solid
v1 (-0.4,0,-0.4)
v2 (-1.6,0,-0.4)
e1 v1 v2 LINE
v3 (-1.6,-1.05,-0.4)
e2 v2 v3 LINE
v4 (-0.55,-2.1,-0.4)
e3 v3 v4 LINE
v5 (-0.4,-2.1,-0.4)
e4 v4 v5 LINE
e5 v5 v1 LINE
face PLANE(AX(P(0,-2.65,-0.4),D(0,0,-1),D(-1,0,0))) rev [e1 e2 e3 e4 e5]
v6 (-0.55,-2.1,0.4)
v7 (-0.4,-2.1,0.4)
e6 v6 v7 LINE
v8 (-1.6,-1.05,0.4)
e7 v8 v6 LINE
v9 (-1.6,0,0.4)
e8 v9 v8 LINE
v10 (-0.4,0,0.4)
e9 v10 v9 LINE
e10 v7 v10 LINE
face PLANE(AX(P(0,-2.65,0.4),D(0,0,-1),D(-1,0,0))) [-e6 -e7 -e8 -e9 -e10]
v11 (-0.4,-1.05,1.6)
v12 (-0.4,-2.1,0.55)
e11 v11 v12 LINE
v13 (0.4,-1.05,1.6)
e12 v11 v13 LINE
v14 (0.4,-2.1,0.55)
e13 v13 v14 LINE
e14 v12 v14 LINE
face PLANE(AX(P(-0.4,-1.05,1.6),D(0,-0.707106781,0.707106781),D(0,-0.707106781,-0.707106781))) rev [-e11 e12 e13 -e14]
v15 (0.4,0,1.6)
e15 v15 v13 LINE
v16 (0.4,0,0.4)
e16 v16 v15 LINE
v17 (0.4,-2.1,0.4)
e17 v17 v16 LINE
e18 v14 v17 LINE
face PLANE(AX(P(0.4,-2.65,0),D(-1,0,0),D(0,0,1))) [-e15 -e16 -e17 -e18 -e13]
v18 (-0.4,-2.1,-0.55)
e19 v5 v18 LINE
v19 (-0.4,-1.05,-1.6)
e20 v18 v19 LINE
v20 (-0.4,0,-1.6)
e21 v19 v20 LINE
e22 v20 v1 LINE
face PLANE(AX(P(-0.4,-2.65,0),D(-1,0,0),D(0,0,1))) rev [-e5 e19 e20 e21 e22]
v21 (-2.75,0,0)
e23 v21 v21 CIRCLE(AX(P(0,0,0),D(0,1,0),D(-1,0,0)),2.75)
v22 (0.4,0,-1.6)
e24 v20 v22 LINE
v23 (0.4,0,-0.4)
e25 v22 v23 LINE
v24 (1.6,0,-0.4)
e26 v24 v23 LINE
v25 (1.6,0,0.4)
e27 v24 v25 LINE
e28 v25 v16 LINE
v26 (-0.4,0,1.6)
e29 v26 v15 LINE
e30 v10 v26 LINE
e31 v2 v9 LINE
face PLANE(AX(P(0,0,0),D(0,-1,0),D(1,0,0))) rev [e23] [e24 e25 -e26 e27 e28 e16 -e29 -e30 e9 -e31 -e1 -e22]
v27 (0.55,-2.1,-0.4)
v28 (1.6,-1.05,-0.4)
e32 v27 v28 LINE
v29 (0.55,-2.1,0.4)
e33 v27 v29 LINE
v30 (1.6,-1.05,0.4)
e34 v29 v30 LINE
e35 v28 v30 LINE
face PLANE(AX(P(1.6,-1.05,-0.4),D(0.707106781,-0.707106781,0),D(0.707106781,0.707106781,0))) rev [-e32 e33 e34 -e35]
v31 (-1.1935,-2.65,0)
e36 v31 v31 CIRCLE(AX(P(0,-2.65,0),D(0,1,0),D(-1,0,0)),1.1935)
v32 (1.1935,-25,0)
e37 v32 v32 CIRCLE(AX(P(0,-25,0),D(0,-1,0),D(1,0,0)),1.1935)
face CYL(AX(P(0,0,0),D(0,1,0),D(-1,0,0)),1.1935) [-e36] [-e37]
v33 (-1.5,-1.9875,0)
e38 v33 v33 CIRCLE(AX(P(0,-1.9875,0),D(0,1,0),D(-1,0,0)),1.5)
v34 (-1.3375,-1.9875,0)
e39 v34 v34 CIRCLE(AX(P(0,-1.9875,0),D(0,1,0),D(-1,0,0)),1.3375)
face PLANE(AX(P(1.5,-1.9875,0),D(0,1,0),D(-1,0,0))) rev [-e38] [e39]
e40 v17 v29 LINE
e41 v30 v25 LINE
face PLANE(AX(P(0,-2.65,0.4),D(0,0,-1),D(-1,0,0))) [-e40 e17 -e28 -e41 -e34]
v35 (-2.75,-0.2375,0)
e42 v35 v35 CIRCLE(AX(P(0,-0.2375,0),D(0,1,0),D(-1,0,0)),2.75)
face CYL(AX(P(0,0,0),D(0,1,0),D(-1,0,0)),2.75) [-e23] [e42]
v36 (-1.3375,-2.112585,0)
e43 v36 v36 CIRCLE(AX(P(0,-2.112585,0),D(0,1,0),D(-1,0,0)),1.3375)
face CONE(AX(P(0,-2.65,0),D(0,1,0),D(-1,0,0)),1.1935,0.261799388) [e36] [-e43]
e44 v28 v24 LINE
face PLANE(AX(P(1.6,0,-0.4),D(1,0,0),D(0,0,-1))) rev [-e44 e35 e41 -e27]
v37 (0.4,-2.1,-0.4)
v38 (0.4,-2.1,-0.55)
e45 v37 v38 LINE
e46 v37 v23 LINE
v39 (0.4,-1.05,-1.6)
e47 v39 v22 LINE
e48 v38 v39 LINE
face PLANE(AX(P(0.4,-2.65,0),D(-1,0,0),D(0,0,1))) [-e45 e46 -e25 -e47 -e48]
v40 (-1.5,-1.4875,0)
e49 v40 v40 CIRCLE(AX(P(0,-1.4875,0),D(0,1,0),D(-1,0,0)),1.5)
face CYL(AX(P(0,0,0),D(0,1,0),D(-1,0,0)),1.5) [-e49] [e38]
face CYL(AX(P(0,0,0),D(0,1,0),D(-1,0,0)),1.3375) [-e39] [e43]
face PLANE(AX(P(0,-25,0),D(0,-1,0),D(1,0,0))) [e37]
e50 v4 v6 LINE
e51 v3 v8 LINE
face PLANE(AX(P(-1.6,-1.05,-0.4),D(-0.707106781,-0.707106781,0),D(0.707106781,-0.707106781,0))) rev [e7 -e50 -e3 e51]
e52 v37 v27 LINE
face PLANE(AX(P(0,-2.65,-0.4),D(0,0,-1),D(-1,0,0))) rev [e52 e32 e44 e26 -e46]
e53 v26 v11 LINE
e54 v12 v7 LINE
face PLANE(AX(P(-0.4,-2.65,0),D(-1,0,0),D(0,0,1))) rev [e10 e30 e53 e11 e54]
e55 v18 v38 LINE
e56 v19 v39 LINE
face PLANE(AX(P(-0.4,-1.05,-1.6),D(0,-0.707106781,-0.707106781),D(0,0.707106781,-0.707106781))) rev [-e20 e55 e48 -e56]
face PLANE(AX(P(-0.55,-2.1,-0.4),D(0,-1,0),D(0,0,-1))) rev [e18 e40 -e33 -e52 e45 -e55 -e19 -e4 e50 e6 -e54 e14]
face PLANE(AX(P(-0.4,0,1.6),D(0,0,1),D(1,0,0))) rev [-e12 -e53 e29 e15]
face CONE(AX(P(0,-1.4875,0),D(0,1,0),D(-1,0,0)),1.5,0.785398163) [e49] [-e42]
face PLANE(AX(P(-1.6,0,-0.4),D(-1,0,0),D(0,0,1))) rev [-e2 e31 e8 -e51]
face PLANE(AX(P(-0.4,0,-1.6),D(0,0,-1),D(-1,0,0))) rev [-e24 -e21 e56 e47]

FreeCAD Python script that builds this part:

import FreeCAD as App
import Part
import Sketcher
from FreeCAD import Vector
Q = App.Units.Quantity

doc = App.newDocument("Part")
body = doc.addObject("PartDesign::Body", "Body")

# Sketch on XY plane
sketch1 = body.newObject("Sketcher::SketchObject", "Sketch")
sketch1.AttachmentSupport = (doc.getObject("XY_Plane"), [""])
sketch1.MapMode = "FlatFace"
sketch1.addGeometry(Part.LineSegment(Vector(2.75, 0, 0), Vector(0, 0, 0)), False)
sketch1.addGeometry(Part.LineSegment(Vector(0, 0, 0), Vector(0, -8, 0)), False)
sketch1.addGeometry(Part.LineSegment(Vector(0, -8, 0), Vector(1.19, -8, 0)), False)
sketch1.addGeometry(Part.LineSegment(Vector(1.19, -8, 0), Vector(1.19, -2.65, 0)), False)
sketch1.addGeometry(Part.LineSegment(Vector(1.19, -2.65, 0), Vector(1.34, -2.11, 0)), False)
sketch1.addGeometry(Part.LineSegment(Vector(1.34, -2.11, 0), Vector(1.34, -1.99, 0)), False)
sketch1.addGeometry(Part.LineSegment(Vector(1.34, -1.99, 0), Vector(1.5, -1.99, 0)), False)
sketch1.addGeometry(Part.LineSegment(Vector(1.5, -1.99, 0), Vector(1.5, -1.49, 0)), False)
sketch1.addGeometry(Part.LineSegment(Vector(1.5, -1.49, 0), Vector(2.75, -0.24, 0)), False)
sketch1.addGeometry(Part.LineSegment(Vector(2.75, -0.24, 0), Vector(2.75, 0, 0)), False)
sketch1.addConstraint(Sketcher.Constraint("Coincident", 0, 2, 1, 1))
sketch1.addConstraint(Sketcher.Constraint("Coincident", 1, 2, 2, 1))
sketch1.addConstraint(Sketcher.Constraint("Coincident", 2, 2, 3, 1))
sketch1.addConstraint(Sketcher.Constraint("Coincident", 3, 2, 4, 1))
sketch1.addConstraint(Sketcher.Constraint("Coincident", 4, 2, 5, 1))
sketch1.addConstraint(Sketcher.Constraint("Coincident", 5, 2, 6, 1))
sketch1.addConstraint(Sketcher.Constraint("Coincident", 6, 2, 7, 1))
sketch1.addConstraint(Sketcher.Constraint("Coincident", 7, 2, 8, 1))
sketch1.addConstraint(Sketcher.Constraint("Coincident", 8, 2, 9, 1))
sketch1.addConstraint(Sketcher.Constraint("Coincident", 9, 2, 0, 1))
sketch1.addConstraint(Sketcher.Constraint("Horizontal", 0))
sketch1.addConstraint(Sketcher.Constraint("Vertical", 1))
sketch1.addConstraint(Sketcher.Constraint("Horizontal", 2))
sketch1.addConstraint(Sketcher.Constraint("Vertical", 3))
sketch1.addConstraint(Sketcher.Constraint("Vertical", 5))
sketch1.addConstraint(Sketcher.Constraint("Horizontal", 6))
sketch1.addConstraint(Sketcher.Constraint("Vertical", 7))
sketch1.addConstraint(Sketcher.Constraint("Vertical", 9))
sketch1.addConstraint(Sketcher.Constraint("Coincident", 0, 2, -1, 1))
sketch1.addConstraint(Sketcher.Constraint("DistanceY", 1, 2, 1, 1, Q("8 mm")))
sketch1.addConstraint(Sketcher.Constraint("Angle", 4, Q("75 deg")))
sketch1.addConstraint(Sketcher.Constraint("Angle", 8, Q("45 deg")))
sketch1.addConstraint(Sketcher.Constraint("DistanceY", 7, 1, 7, 2, Q("0.5 mm")))
sketch1.addConstraint(Sketcher.Constraint("DistanceX", 0, 2, 0, 1, Q("2.75 mm")))
sketch1.addConstraint(Sketcher.Constraint("DistanceY", 3, 1, 3, 2, Q("5.35 mm")))
sketch1.addConstraint(Sketcher.Constraint("DistanceX", -1, 1, 6, 2, Q("1.5 mm")))
sketch1.addConstraint(Sketcher.Constraint("DistanceX", 2, 1, 2, 2, Q("1.1935 mm")))
sketch1.addConstraint(Sketcher.Constraint("DistanceX", 6, 1, 6, 2, Q("0.1625 mm")))
sketch1.addConstraint(Sketcher.Constraint("DistanceY", 9, 1, 9, 2, Q("0.2375 mm")))
revolution = body.newObject("PartDesign::Revolution", "Revolution")
revolution.Profile = sketch1
revolution.ReferenceAxis = (sketch1, ["V_Axis"])
revolution.Angle = 360

# Sketch on XY plane
sketch2 = body.newObject("Sketcher::SketchObject", "Sketch001")
sketch2.AttachmentSupport = (doc.getObject("XY_Plane"), [""])
sketch2.MapMode = "FlatFace"
sketch2.addGeometry(Part.LineSegment(Vector(-0.6, -2.1, 0), Vector(0.6, -2.1, 0)), False)
sketch2.addGeometry(Part.LineSegment(Vector(0.6, -2.1, 0), Vector(1.6, -1.1, 0)), False)
sketch2.addGeometry(Part.LineSegment(Vector(1.6, -1.1, 0), Vector(1.6, 0, 0)), False)
sketch2.addGeometry(Part.LineSegment(Vector(1.6, 0, 0), Vector(-1.6, 0, 0)), False)
sketch2.addGeometry(Part.LineSegment(Vector(-1.6, 0, 0), Vector(-1.6, -1.1, 0)), False)
sketch2.addGeometry(Part.LineSegment(Vector(-1.6, -1.1, 0), Vector(-0.6, -2.1, 0)), False)
sketch2.addConstraint(Sketcher.Constraint("Coincident", 0, 2, 1, 1))
sketch2.addConstraint(Sketcher.Constraint("Coincident", 1, 2, 2, 1))
sketch2.addConstraint(Sketcher.Constraint("Coincident", 2, 2, 3, 1))
sketch2.addConstraint(Sketcher.Constraint("Coincident", 3, 2, 4, 1))
sketch2.addConstraint(Sketcher.Constraint("Coincident", 4, 2, 5, 1))
sketch2.addConstraint(Sketcher.Constraint("Coincident", 5, 2, 0, 1))
sketch2.addConstraint(Sketcher.Constraint("Horizontal", 0))
sketch2.addConstraint(Sketcher.Constraint("Vertical", 2))
sketch2.addConstraint(Sketcher.Constraint("Horizontal", 3))
sketch2.addConstraint(Sketcher.Constraint("Vertical", 4))
sketch2.addConstraint(Sketcher.Constraint("Symmetric", 2, 2, 3, 2, -1, 1))
sketch2.addConstraint(Sketcher.Constraint("Perpendicular", 1, 5))
sketch2.addConstraint(Sketcher.Constraint("Horizontal", 1, 2, 4, 2))
sketch2.addConstraint(Sketcher.Constraint("Equal", 1, 5))
sketch2.addConstraint(Sketcher.Constraint("DistanceX", 0, 1, 0, 2, Q("1.1 mm")))
sketch2.addConstraint(Sketcher.Constraint("DistanceX", 3, 2, 3, 1, Q("3.2 mm")))
sketch2.addConstraint(Sketcher.Constraint("DistanceY", 2, 1, 2, 2, Q("1.05 mm")))
pocket1 = body.newObject("PartDesign::Pocket", "Pocket")
pocket1.Profile = sketch2
pocket1.Type = "TwoLengths"
pocket1.Length = 0.4
pocket1.Length2 = 0.4
pocket1.Reversed = True

# Sketch on YZ plane
sketch3 = body.newObject("Sketcher::SketchObject", "Sketch002")
sketch3.AttachmentSupport = (doc.getObject("YZ_Plane"), [""])
sketch3.MapMode = "FlatFace"
sketch3.addGeometry(Part.LineSegment(Vector(-2.1, 0.6, 0), Vector(-2.1, -0.6, 0)), False)
sketch3.addGeometry(Part.LineSegment(Vector(-2.1, -0.6, 0), Vector(-1.1, -1.6, 0)), False)
sketch3.addGeometry(Part.LineSegment(Vector(-1.1, -1.6, 0), Vector(0, -1.6, 0)), False)
sketch3.addGeometry(Part.LineSegment(Vector(0, -1.6, 0), Vector(0, 1.6, 0)), False)
sketch3.addGeometry(Part.LineSegment(Vector(0, 1.6, 0), Vector(-1.1, 1.6, 0)), False)
sketch3.addGeometry(Part.LineSegment(Vector(-1.1, 1.6, 0), Vector(-2.1, 0.6, 0)), False)
sketch3.addConstraint(Sketcher.Constraint("Coincident", 0, 2, 1, 1))
sketch3.addConstraint(Sketcher.Constraint("Coincident", 1, 2, 2, 1))
sketch3.addConstraint(Sketcher.Constraint("Coincident", 2, 2, 3, 1))
sketch3.addConstraint(Sketcher.Constraint("Coincident", 3, 2, 4, 1))
sketch3.addConstraint(Sketcher.Constraint("Coincident", 4, 2, 5, 1))
sketch3.addConstraint(Sketcher.Constraint("Coincident", 5, 2, 0, 1))
sketch3.addConstraint(Sketcher.Constraint("Vertical", 0))
sketch3.addConstraint(Sketcher.Constraint("Horizontal", 2))
sketch3.addConstraint(Sketcher.Constraint("Vertical", 3))
sketch3.addConstraint(Sketcher.Constraint("Horizontal", 4))
sketch3.addConstraint(Sketcher.Constraint("Symmetric", 2, 2, 3, 2, -1, 1))
sketch3.addConstraint(Sketcher.Constraint("Perpendicular", 1, 5))
sketch3.addConstraint(Sketcher.Constraint("Vertical", 1, 2, 4, 2))
sketch3.addConstraint(Sketcher.Constraint("Equal", 1, 5))
sketch3.addConstraint(Sketcher.Constraint("DistanceY", 0, 2, 0, 1, Q("1.1 mm")))
sketch3.addConstraint(Sketcher.Constraint("DistanceY", 3, 1, 3, 2, Q("3.2 mm")))
sketch3.addConstraint(Sketcher.Constraint("DistanceX", 2, 1, 2, 2, Q("1.05 mm")))
pocket2 = body.newObject("PartDesign::Pocket", "Pocket001")
pocket2.Profile = sketch3
pocket2.Type = "TwoLengths"
pocket2.Length = 0.4
pocket2.Length2 = 0.4
pocket2.Reversed = True

# Sketch on XZ plane
sketch4 = body.newObject("Sketcher::SketchObject", "Sketch003")
sketch4.AttachmentSupport = (doc.getObject("XZ_Plane"), [""])
sketch4.MapMode = "FlatFace"
sketch4.AttachmentOffset = App.Placement(Vector(0, 0, 25), App.Rotation())
sketch4.addGeometry(Part.Circle(Vector(0, 0, 0), Vector(0, 0, 1), 1.2), False)
sketch4.addConstraint(Sketcher.Constraint("Coincident", 0, 3, -1, 1))
sketch4.addConstraint(Sketcher.Constraint("Diameter", 0, Q("2.387 mm")))
pad1 = body.newObject("PartDesign::Pad", "Pad")
pad1.Profile = sketch4
pad1.Length = 17
pad1.Reversed = True

doc.recompute()
